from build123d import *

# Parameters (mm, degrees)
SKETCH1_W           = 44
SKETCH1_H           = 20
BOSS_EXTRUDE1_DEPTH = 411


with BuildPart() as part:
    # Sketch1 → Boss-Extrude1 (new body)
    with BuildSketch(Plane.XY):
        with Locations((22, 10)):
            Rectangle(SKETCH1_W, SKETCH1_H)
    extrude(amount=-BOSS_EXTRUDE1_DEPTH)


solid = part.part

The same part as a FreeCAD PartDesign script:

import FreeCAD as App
import Part
import Sketcher
from FreeCAD import Vector
Q = App.Units.Quantity

doc = App.newDocument("Part")
body = doc.addObject("PartDesign::Body", "Body")

# Sketch on XY plane
sketch1 = doc.addObject("Sketcher::SketchObject", "Sketch")
body.addObject(sketch1)
sketch1.AttachmentSupport = (doc.XY_Plane, [""])
sketch1.MapMode = "FlatFace"
sketch1.addGeometry([
    Part.LineSegment(Vector(0, 20, 0), Vector(0, 0, 0)),
    Part.LineSegment(Vector(0, 0, 0), Vector(44, 0, 0)),
    Part.LineSegment(Vector(44, 0, 0), Vector(44, 20, 0)),
    Part.LineSegment(Vector(44, 20, 0), Vector(0, 20, 0)),
], False)
sketch1.addConstraint([
    Sketcher.Constraint("Coincident", 0, 2, 1, 1),
    Sketcher.Constraint("Coincident", 1, 2, 2, 1),
    Sketcher.Constraint("Coincident", 2, 2, 3, 1),
    Sketcher.Constraint("Coincident", 3, 2, 0, 1),
    Sketcher.Constraint("Vertical", 0),
    Sketcher.Constraint("Horizontal", 1),
    Sketcher.Constraint("Vertical", 2),
    Sketcher.Constraint("Horizontal", 3),
    Sketcher.Constraint("Coincident", 0, 2, -1, 1),
    Sketcher.Constraint("DistanceX", 1, 1, 1, 2, Q("44 mm")),
    Sketcher.Constraint("DistanceY", 0, 2, 0, 1, Q("20 mm")),
])
pad1 = doc.addObject("PartDesign::Pad", "Pad")
body.addObject(pad1)
pad1.Profile = sketch1
pad1.Length = 411
pad1.Reversed = True

doc.recompute()
